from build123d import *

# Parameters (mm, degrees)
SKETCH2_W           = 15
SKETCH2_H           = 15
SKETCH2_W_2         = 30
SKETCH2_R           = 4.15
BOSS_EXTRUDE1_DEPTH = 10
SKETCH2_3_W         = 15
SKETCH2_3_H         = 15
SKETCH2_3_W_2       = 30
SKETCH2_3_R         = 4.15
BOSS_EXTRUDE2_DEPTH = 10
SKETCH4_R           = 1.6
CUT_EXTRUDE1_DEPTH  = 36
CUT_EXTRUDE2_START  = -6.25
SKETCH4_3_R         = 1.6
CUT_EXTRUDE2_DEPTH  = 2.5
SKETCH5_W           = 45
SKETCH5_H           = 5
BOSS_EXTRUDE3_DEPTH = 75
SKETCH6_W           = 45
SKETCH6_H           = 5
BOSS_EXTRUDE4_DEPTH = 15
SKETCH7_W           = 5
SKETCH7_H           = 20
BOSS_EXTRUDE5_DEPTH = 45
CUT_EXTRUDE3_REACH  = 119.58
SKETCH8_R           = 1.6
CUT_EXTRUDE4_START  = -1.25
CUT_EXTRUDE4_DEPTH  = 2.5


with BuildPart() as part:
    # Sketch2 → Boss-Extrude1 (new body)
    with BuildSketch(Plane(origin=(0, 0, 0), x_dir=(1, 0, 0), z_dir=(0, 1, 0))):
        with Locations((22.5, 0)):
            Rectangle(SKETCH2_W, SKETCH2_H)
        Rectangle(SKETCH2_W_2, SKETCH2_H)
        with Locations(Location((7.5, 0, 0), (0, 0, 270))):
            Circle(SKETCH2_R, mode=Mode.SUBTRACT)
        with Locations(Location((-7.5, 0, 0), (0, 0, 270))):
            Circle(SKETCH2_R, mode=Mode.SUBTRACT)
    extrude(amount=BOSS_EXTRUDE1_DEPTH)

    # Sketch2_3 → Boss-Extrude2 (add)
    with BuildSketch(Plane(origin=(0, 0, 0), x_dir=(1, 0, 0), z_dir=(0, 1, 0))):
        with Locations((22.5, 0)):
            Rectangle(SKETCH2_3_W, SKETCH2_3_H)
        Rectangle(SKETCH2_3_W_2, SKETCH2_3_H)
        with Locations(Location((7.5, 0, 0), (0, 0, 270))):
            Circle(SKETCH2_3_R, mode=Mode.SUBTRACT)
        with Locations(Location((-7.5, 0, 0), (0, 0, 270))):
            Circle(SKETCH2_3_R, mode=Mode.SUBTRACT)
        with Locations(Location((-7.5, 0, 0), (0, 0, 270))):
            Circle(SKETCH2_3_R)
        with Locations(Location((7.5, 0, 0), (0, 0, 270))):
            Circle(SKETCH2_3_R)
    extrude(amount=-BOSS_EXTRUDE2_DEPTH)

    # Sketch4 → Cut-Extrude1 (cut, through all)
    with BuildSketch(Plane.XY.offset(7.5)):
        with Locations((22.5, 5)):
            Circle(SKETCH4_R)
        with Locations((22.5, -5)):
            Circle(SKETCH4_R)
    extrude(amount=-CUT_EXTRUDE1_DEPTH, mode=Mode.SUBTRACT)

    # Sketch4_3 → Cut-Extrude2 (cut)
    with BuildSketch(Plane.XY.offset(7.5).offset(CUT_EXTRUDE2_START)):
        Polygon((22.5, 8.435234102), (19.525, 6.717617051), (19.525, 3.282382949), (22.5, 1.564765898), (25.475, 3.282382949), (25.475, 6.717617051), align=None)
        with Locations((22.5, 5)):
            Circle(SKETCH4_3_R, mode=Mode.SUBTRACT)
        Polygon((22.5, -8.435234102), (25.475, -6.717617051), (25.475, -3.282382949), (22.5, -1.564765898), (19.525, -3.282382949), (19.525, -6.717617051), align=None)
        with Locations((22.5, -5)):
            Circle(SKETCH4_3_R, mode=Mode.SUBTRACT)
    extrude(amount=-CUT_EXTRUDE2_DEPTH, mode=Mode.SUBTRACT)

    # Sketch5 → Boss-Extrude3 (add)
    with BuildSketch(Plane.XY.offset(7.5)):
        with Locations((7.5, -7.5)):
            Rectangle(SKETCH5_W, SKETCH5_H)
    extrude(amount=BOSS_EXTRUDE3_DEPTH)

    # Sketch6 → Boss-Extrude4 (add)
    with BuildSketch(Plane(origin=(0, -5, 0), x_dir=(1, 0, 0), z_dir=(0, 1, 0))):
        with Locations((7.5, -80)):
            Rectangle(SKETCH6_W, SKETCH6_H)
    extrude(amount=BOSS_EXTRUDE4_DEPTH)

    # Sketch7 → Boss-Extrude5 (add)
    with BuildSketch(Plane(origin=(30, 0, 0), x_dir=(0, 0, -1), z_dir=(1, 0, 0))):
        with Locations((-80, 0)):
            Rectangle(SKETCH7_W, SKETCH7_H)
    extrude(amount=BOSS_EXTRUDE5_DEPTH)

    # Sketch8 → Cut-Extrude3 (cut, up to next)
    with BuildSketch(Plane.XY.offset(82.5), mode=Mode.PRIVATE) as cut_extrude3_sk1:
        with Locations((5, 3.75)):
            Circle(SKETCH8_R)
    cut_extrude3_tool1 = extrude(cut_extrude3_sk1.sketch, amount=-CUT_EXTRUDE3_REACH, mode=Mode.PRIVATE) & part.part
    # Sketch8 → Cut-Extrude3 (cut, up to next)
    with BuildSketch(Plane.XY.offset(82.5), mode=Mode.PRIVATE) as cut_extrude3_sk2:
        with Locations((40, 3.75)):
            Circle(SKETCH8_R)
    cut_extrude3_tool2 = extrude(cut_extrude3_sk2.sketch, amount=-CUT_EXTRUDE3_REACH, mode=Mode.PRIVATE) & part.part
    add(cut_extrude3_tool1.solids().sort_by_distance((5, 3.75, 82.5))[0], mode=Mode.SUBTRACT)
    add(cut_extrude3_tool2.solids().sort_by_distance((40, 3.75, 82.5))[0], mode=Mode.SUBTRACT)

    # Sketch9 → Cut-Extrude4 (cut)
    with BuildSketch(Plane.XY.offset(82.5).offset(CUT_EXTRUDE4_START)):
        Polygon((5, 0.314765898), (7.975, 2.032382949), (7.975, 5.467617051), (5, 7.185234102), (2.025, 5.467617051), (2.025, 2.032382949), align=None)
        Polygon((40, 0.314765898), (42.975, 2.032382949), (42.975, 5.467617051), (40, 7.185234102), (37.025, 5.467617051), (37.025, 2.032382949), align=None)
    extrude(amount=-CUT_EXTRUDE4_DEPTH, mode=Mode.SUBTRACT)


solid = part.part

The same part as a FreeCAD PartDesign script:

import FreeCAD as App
import Part
import Sketcher

V = App.Vector
Q = App.Units.Quantity


def add_polygon(sketch, points):
    """Adds a closed chain of lines whose ends are joined by coincident constraints."""
    first, n = sketch.GeometryCount, len(points)
    for a, b in zip(points, points[1:] + points[:1]):
        sketch.addGeometry(Part.LineSegment(App.Vector(*a, 0), App.Vector(*b, 0)), False)
    for i in range(n):
        sketch.addConstraint(Sketcher.Constraint("Coincident", first + i, 2, first + (i + 1) % n, 1))

doc = App.newDocument("Part")
params = doc.addObject("Spreadsheet::Sheet", "Params")
for row, (alias, value) in enumerate([
    ("sketch1_diameter", "8.3 mm"),
    ("sketch1_width", "45 mm"),
    ("sketch1_height", "15 mm"),
    ("pad1_length", "10 mm"),
    ("sketch2_width", "45 mm"),
    ("sketch2_height", "15 mm"),
    ("pad2_length", "10 mm"),
    ("sketch3_diameter", "3.2 mm"),
    ("sketch4_diameter", "3.2 mm"),
    ("pocket2_length", "2.5 mm"),
    ("sketch5_width", "45 mm"),
    ("sketch5_height", "5 mm"),
    ("pad3_length", "75 mm"),
    ("sketch6_width", "45 mm"),
    ("sketch6_height", "5 mm"),
    ("pad4_length", "15 mm"),
    ("sketch7_width", "20 mm"),
    ("sketch7_height", "5 mm"),
    ("pad5_length", "45 mm"),
    ("sketch8_diameter", "3.2 mm"),
    ("sketch9_diameter", "3.2 mm"),
    ("pocket5_length", "2.5 mm"),
], start=1):
    params.set(f"A{row}", alias)
    params.set(f"B{row}", "=" + value)
    params.setAlias(f"B{row}", alias)

body = doc.addObject("PartDesign::Body", "Body")

sketch1 = body.newObject("Sketcher::SketchObject", "Sketch")
sketch1.AttachmentSupport = (doc.getObject("XZ_Plane"), [""])
sketch1.MapMode = "FlatFace"
add_polygon(sketch1, [(30, 7.5), (30, -7.5), (-15, -7.5), (-15, 7.5)])
sketch1.addGeometry(Part.Circle(V(-7.5, 0, 0), V(0, 0, 1), 4.15), False)
sketch1.addGeometry(Part.Circle(V(7.5, 0, 0), V(0, 0, 1), 4.15), False)
sketch1.addConstraint([
    Sketcher.Constraint("Vertical", 0),
    Sketcher.Constraint("Horizontal", 1),
    Sketcher.Constraint("Vertical", 2),
    Sketcher.Constraint("Horizontal", 3),
    Sketcher.Constraint("Equal", 4, 5),
    Sketcher.Constraint("Symmetric", 4, 3, 5, 3, -1, 1),
    Sketcher.Constraint("PointOnObject", 4, 3, -1),
    Sketcher.Constraint("Diameter", 4, 8.3),
    Sketcher.Constraint("DistanceX", 1, 2, 1, 1, 45.0),
    Sketcher.Constraint("DistanceY", 0, 2, 0, 1, 15.0),
    Sketcher.Constraint("DistanceX", -1, 1, 0, 2, 30.0),
    Sketcher.Constraint("DistanceX", 4, 3, 5, 3, 15.0),
    Sketcher.Constraint("DistanceY", 0, 2, -1, 1, 7.5),
])
sketch1.setExpression("Constraints[11]", "Params.sketch1_diameter")
sketch1.setExpression("Constraints[12]", "Params.sketch1_width")
sketch1.setExpression("Constraints[13]", "Params.sketch1_height")
pad1 = body.newObject("PartDesign::Pad", "Pad")
pad1.Profile = sketch1
pad1.setExpression("Length", "Params.pad1_length")
pad1.Reversed = True

sketch2 = body.newObject("Sketcher::SketchObject", "Sketch001")
sketch2.AttachmentSupport = (doc.getObject("XZ_Plane"), [""])
sketch2.MapMode = "FlatFace"
add_polygon(sketch2, [(30, 7.5), (30, -7.5), (-15, -7.5), (-15, 7.5)])
sketch2.addConstraint([
    Sketcher.Constraint("Vertical", 0),
    Sketcher.Constraint("Horizontal", 1),
    Sketcher.Constraint("Vertical", 2),
    Sketcher.Constraint("Horizontal", 3),
    Sketcher.Constraint("DistanceX", 1, 2, 1, 1, 45.0),
    Sketcher.Constraint("DistanceY", 0, 2, 0, 1, 15.0),
    Sketcher.Constraint("DistanceX", -1, 1, 0, 2, 30.0),
    Sketcher.Constraint("DistanceY", 0, 2, -1, 1, 7.5),
])
sketch2.setExpression("Constraints[8]", "Params.sketch2_width")
sketch2.setExpression("Constraints[9]", "Params.sketch2_height")
pad2 = body.newObject("PartDesign::Pad", "Pad001")
pad2.Profile = sketch2
pad2.setExpression("Length", "Params.pad2_length")

sketch3 = body.newObject("Sketcher::SketchObject", "Sketch002")
sketch3.AttachmentSupport = (doc.getObject("XY_Plane"), [""])
sketch3.MapMode = "FlatFace"
sketch3.AttachmentOffset = App.Placement(V(0, 0, 7.5), App.Rotation())
sketch3.addGeometry([
    Part.Circle(V(22.5, 5, 0), V(0, 0, 1), 1.6),
    Part.Circle(V(22.5, -5, 0), V(0, 0, 1), 1.6),
], False)
sketch3.addConstraint([
    Sketcher.Constraint("Equal", 0, 1),
    Sketcher.Constraint("Symmetric", 0, 3, 1, 3, -1),
    Sketcher.Constraint("Diameter", 0, 3.2),
    Sketcher.Constraint("DistanceY", -1, 1, 0, 3, 5.0),
    Sketcher.Constraint("DistanceX", -1, 1, 0, 3, 22.5),
])
sketch3.setExpression("Constraints[2]", "Params.sketch3_diameter")
pocket1 = body.newObject("PartDesign::Pocket", "Pocket")
pocket1.Profile = sketch3
pocket1.Type = "ThroughAll"

sketch4 = body.newObject("Sketcher::SketchObject", "Sketch003")
sketch4.AttachmentSupport = (doc.getObject("XY_Plane"), [""])
sketch4.MapMode = "FlatFace"
sketch4.AttachmentOffset = App.Placement(V(0, 0, 1.25), App.Rotation())
add_polygon(sketch4, [(22.5, 8.435234), (19.525, 6.717617), (19.525, 3.282383), (22.5, 1.564766), (25.475, 3.282383), (25.475, 6.717617)])
sketch4.addGeometry(Part.Circle(V(22.5, 5, 0), V(0, 0, 1), 1.6), False)
add_polygon(sketch4, [(22.5, -8.435234), (25.475, -6.717617), (25.475, -3.282383), (22.5, -1.564766), (19.525, -3.282383), (19.525, -6.717617)])
sketch4.addGeometry(Part.Circle(V(22.5, -5, 0), V(0, 0, 1), 1.6), False)
sketch4.addConstraint([
    Sketcher.Constraint("Vertical", 1),
    Sketcher.Constraint("Vertical", 4),
    Sketcher.Constraint("Vertical", 8),
    Sketcher.Constraint("Vertical", 11),
    Sketcher.Constraint("Equal", 6, 13),
    Sketcher.Constraint("Symmetric", 6, 3, 13, 3, -1),
    Sketcher.Constraint("Symmetric", 4, 2, 7, 2, -1),
    Sketcher.Constraint("Symmetric", 2, 2, 9, 2, -1),
    Sketcher.Constraint("Symmetric", 1, 2, 10, 2, -1),
    Sketcher.Constraint("Symmetric", 5, 2, 12, 2, -1),
    Sketcher.Constraint("Parallel", 0, 3),
    Sketcher.Constraint("Parallel", 2, 5),
    Sketcher.Constraint("Parallel", 3, 7),
    Sketcher.Constraint("Parallel", 5, 9),
    Sketcher.Constraint("Parallel", 9, 12),
    Sketcher.Constraint("Horizontal", 1, 2, 3, 2),
    Sketcher.Constraint("Horizontal", 0, 2, 4, 2),
    Sketcher.Constraint("Vertical", 13, 3, 2, 2),
    Sketcher.Constraint("Diameter", 6, 3.2),
    Sketcher.Constraint("Angle", 0, Q("-150 deg")),
    Sketcher.Constraint("DistanceY", -1, 1, 6, 3, 5.0),
    Sketcher.Constraint("DistanceY", 7, 2, 3, 2, 10.0),
    Sketcher.Constraint("DistanceX", -1, 1, 6, 3, 22.5),
    Sketcher.Constraint("DistanceX", 1, 2, 3, 2, 5.95),
    Sketcher.Constraint("DistanceY", 1, 2, 1, 1, 3.435234),
])
sketch4.setExpression("Constraints[30]", "Params.sketch4_diameter")
pocket2 = body.newObject("PartDesign::Pocket", "Pocket001")
pocket2.Profile = sketch4
pocket2.setExpression("Length", "Params.pocket2_length")

sketch5 = body.newObject("Sketcher::SketchObject", "Sketch004")
sketch5.AttachmentSupport = (doc.getObject("XY_Plane"), [""])
sketch5.MapMode = "FlatFace"
sketch5.AttachmentOffset = App.Placement(V(0, 0, 7.5), App.Rotation())
add_polygon(sketch5, [(-15, -5), (-15, -10), (30, -10), (30, -5)])
sketch5.addConstraint([
    Sketcher.Constraint("Vertical", 0),
    Sketcher.Constraint("Horizontal", 1),
    Sketcher.Constraint("Vertical", 2),
    Sketcher.Constraint("Horizontal", 3),
    Sketcher.Constraint("DistanceX", 1, 1, 1, 2, 45.0),
    Sketcher.Constraint("DistanceY", 0, 2, 0, 1, 5.0),
    Sketcher.Constraint("DistanceX", 0, 2, -1, 1, 15.0),
    Sketcher.Constraint("DistanceY", 0, 2, -1, 1, 10.0),
])
sketch5.setExpression("Constraints[8]", "Params.sketch5_width")
sketch5.setExpression("Constraints[9]", "Params.sketch5_height")
pad3 = body.newObject("PartDesign::Pad", "Pad002")
pad3.Profile = sketch5
pad3.setExpression("Length", "Params.pad3_length")

sketch6 = body.newObject("Sketcher::SketchObject", "Sketch005")
sketch6.AttachmentSupport = (doc.getObject("XZ_Plane"), [""])
sketch6.MapMode = "FlatFace"
sketch6.AttachmentOffset = App.Placement(V(0, 0, 5), App.Rotation())
add_polygon(sketch6, [(-15, 77.5), (-15, 82.5), (30, 82.5), (30, 77.5)])
sketch6.addConstraint([
    Sketcher.Constraint("Vertical", 0),
    Sketcher.Constraint("Horizontal", 1),
    Sketcher.Constraint("Vertical", 2),
    Sketcher.Constraint("Horizontal", 3),
    Sketcher.Constraint("DistanceX", 1, 1, 1, 2, 45.0),
    Sketcher.Constraint("DistanceY", 0, 1, 0, 2, 5.0),
    Sketcher.Constraint("DistanceX", 0, 2, -1, 1, 15.0),
    Sketcher.Constraint("DistanceY", -1, 1, 0, 2, 82.5),
])
sketch6.setExpression("Constraints[8]", "Params.sketch6_width")
sketch6.setExpression("Constraints[9]", "Params.sketch6_height")
pad4 = body.newObject("PartDesign::Pad", "Pad003")
pad4.Profile = sketch6
pad4.setExpression("Length", "Params.pad4_length")
pad4.Reversed = True

sketch7 = body.newObject("Sketcher::SketchObject", "Sketch006")
sketch7.AttachmentSupport = (doc.getObject("YZ_Plane"), [""])
sketch7.MapMode = "FlatFace"
sketch7.AttachmentOffset = App.Placement(V(0, 0, 30), App.Rotation())
add_polygon(sketch7, [(10, 82.5), (-10, 82.5), (-10, 77.5), (10, 77.5)])
sketch7.addConstraint([
    Sketcher.Constraint("Horizontal", 0),
    Sketcher.Constraint("Vertical", 1),
    Sketcher.Constraint("Horizontal", 2),
    Sketcher.Constraint("Vertical", 3),
    Sketcher.Constraint("DistanceX", 0, 2, 0, 1, 20.0),
    Sketcher.Constraint("DistanceY", 1, 2, 1, 1, 5.0),
    Sketcher.Constraint("DistanceX", 0, 2, -1, 1, 10.0),
    Sketcher.Constraint("DistanceY", -1, 1, 0, 2, 82.5),
])
sketch7.setExpression("Constraints[8]", "Params.sketch7_width")
sketch7.setExpression("Constraints[9]", "Params.sketch7_height")
pad5 = body.newObject("PartDesign::Pad", "Pad004")
pad5.Profile = sketch7
pad5.setExpression("Length", "Params.pad5_length")

sketch8 = body.newObject("Sketcher::SketchObject", "Sketch007")
sketch8.AttachmentSupport = (doc.getObject("XY_Plane"), [""])
sketch8.MapMode = "FlatFace"
sketch8.AttachmentOffset = App.Placement(V(0, 0, 82.5), App.Rotation())
sketch8.addGeometry(Part.Circle(V(5, 3.75, 0), V(0, 0, 1), 1.6), False)
sketch8.addConstraint([
    Sketcher.Constraint("Diameter", 0, 3.2),
    Sketcher.Constraint("DistanceX", -1, 1, 0, 3, 5.0),
    Sketcher.Constraint("DistanceY", -1, 1, 0, 3, 3.75),
])
sketch8.setExpression("Constraints[0]", "Params.sketch8_diameter")
pocket3 = body.newObject("PartDesign::Pocket", "Pocket002")
pocket3.Profile = sketch8
pocket3.Type = "UpToFirst"

sketch9 = body.newObject("Sketcher::SketchObject", "Sketch008")
sketch9.AttachmentSupport = (doc.getObject("XY_Plane"), [""])
sketch9.MapMode = "FlatFace"
sketch9.AttachmentOffset = App.Placement(V(0, 0, 82.5), App.Rotation())
sketch9.addGeometry(Part.Circle(V(40, 3.75, 0), V(0, 0, 1), 1.6), False)
sketch9.addConstraint([
    Sketcher.Constraint("Diameter", 0, 3.2),
    Sketcher.Constraint("DistanceX", -1, 1, 0, 3, 40.0),
    Sketcher.Constraint("DistanceY", -1, 1, 0, 3, 3.75),
])
sketch9.setExpression("Constraints[0]", "Params.sketch9_diameter")
pocket4 = body.newObject("PartDesign::Pocket", "Pocket003")
pocket4.Profile = sketch9
pocket4.Type = "UpToFirst"

sketch10 = body.newObject("Sketcher::SketchObject", "Sketch009")
sketch10.AttachmentSupport = (doc.getObject("XY_Plane"), [""])
sketch10.MapMode = "FlatFace"
sketch10.AttachmentOffset = App.Placement(V(0, 0, 81.25), App.Rotation())
add_polygon(sketch10, [(5, 0.314766), (7.975, 2.032383), (7.975, 5.467617), (5, 7.185234), (2.025, 5.467617), (2.025, 2.032383)])
add_polygon(sketch10, [(40, 0.314766), (42.975, 2.032383), (42.975, 5.467617), (40, 7.185234), (37.025, 5.467617), (37.025, 2.032383)])
sketch10.addConstraint([
    Sketcher.Constraint("Vertical", 1),
    Sketcher.Constraint("Vertical", 4),
    Sketcher.Constraint("Vertical", 7),
    Sketcher.Constraint("Vertical", 10),
    Sketcher.Constraint("Parallel", 0, 3),
    Sketcher.Constraint("Parallel", 2, 5),
    Sketcher.Constraint("Parallel", 3, 6),
    Sketcher.Constraint("Parallel", 5, 8),
    Sketcher.Constraint("Parallel", 6, 9),
    Sketcher.Constraint("Parallel", 8, 11),
    Sketcher.Constraint("Horizontal", 1, 2, 3, 2),
    Sketcher.Constraint("Horizontal", 0, 2, 4, 2),
    Sketcher.Constraint("Horizontal", 4, 2, 6, 2),
    Sketcher.Constraint("Horizontal", 3, 2, 7, 2),
    Sketcher.Constraint("Horizontal", 2, 2, 8, 2),
    Sketcher.Constraint("Horizontal", 7, 2, 9, 2),
    Sketcher.Constraint("Horizontal", 6, 2, 10, 2),
    Sketcher.Constraint("Vertical", 2, 2, 5, 2),
    Sketcher.Constraint("Angle", 0, Q("30 deg")),
    Sketcher.Constraint("DistanceX", -1, 1, 2, 2, 5.0),
    Sketcher.Constraint("DistanceX", -1, 1, 8, 2, 40.0),
    Sketcher.Constraint("DistanceX", 3, 2, 1, 2, 5.95),
    Sketcher.Constraint("DistanceY", 1, 1, 1, 2, 3.435234),
    Sketcher.Constraint("DistanceY", -1, 1, 0, 2, 2.032383),
])
pocket5 = body.newObject("PartDesign::Pocket", "Pocket004")
pocket5.Profile = sketch10
pocket5.setExpression("Length", "Params.pocket5_length")

doc.recompute()
